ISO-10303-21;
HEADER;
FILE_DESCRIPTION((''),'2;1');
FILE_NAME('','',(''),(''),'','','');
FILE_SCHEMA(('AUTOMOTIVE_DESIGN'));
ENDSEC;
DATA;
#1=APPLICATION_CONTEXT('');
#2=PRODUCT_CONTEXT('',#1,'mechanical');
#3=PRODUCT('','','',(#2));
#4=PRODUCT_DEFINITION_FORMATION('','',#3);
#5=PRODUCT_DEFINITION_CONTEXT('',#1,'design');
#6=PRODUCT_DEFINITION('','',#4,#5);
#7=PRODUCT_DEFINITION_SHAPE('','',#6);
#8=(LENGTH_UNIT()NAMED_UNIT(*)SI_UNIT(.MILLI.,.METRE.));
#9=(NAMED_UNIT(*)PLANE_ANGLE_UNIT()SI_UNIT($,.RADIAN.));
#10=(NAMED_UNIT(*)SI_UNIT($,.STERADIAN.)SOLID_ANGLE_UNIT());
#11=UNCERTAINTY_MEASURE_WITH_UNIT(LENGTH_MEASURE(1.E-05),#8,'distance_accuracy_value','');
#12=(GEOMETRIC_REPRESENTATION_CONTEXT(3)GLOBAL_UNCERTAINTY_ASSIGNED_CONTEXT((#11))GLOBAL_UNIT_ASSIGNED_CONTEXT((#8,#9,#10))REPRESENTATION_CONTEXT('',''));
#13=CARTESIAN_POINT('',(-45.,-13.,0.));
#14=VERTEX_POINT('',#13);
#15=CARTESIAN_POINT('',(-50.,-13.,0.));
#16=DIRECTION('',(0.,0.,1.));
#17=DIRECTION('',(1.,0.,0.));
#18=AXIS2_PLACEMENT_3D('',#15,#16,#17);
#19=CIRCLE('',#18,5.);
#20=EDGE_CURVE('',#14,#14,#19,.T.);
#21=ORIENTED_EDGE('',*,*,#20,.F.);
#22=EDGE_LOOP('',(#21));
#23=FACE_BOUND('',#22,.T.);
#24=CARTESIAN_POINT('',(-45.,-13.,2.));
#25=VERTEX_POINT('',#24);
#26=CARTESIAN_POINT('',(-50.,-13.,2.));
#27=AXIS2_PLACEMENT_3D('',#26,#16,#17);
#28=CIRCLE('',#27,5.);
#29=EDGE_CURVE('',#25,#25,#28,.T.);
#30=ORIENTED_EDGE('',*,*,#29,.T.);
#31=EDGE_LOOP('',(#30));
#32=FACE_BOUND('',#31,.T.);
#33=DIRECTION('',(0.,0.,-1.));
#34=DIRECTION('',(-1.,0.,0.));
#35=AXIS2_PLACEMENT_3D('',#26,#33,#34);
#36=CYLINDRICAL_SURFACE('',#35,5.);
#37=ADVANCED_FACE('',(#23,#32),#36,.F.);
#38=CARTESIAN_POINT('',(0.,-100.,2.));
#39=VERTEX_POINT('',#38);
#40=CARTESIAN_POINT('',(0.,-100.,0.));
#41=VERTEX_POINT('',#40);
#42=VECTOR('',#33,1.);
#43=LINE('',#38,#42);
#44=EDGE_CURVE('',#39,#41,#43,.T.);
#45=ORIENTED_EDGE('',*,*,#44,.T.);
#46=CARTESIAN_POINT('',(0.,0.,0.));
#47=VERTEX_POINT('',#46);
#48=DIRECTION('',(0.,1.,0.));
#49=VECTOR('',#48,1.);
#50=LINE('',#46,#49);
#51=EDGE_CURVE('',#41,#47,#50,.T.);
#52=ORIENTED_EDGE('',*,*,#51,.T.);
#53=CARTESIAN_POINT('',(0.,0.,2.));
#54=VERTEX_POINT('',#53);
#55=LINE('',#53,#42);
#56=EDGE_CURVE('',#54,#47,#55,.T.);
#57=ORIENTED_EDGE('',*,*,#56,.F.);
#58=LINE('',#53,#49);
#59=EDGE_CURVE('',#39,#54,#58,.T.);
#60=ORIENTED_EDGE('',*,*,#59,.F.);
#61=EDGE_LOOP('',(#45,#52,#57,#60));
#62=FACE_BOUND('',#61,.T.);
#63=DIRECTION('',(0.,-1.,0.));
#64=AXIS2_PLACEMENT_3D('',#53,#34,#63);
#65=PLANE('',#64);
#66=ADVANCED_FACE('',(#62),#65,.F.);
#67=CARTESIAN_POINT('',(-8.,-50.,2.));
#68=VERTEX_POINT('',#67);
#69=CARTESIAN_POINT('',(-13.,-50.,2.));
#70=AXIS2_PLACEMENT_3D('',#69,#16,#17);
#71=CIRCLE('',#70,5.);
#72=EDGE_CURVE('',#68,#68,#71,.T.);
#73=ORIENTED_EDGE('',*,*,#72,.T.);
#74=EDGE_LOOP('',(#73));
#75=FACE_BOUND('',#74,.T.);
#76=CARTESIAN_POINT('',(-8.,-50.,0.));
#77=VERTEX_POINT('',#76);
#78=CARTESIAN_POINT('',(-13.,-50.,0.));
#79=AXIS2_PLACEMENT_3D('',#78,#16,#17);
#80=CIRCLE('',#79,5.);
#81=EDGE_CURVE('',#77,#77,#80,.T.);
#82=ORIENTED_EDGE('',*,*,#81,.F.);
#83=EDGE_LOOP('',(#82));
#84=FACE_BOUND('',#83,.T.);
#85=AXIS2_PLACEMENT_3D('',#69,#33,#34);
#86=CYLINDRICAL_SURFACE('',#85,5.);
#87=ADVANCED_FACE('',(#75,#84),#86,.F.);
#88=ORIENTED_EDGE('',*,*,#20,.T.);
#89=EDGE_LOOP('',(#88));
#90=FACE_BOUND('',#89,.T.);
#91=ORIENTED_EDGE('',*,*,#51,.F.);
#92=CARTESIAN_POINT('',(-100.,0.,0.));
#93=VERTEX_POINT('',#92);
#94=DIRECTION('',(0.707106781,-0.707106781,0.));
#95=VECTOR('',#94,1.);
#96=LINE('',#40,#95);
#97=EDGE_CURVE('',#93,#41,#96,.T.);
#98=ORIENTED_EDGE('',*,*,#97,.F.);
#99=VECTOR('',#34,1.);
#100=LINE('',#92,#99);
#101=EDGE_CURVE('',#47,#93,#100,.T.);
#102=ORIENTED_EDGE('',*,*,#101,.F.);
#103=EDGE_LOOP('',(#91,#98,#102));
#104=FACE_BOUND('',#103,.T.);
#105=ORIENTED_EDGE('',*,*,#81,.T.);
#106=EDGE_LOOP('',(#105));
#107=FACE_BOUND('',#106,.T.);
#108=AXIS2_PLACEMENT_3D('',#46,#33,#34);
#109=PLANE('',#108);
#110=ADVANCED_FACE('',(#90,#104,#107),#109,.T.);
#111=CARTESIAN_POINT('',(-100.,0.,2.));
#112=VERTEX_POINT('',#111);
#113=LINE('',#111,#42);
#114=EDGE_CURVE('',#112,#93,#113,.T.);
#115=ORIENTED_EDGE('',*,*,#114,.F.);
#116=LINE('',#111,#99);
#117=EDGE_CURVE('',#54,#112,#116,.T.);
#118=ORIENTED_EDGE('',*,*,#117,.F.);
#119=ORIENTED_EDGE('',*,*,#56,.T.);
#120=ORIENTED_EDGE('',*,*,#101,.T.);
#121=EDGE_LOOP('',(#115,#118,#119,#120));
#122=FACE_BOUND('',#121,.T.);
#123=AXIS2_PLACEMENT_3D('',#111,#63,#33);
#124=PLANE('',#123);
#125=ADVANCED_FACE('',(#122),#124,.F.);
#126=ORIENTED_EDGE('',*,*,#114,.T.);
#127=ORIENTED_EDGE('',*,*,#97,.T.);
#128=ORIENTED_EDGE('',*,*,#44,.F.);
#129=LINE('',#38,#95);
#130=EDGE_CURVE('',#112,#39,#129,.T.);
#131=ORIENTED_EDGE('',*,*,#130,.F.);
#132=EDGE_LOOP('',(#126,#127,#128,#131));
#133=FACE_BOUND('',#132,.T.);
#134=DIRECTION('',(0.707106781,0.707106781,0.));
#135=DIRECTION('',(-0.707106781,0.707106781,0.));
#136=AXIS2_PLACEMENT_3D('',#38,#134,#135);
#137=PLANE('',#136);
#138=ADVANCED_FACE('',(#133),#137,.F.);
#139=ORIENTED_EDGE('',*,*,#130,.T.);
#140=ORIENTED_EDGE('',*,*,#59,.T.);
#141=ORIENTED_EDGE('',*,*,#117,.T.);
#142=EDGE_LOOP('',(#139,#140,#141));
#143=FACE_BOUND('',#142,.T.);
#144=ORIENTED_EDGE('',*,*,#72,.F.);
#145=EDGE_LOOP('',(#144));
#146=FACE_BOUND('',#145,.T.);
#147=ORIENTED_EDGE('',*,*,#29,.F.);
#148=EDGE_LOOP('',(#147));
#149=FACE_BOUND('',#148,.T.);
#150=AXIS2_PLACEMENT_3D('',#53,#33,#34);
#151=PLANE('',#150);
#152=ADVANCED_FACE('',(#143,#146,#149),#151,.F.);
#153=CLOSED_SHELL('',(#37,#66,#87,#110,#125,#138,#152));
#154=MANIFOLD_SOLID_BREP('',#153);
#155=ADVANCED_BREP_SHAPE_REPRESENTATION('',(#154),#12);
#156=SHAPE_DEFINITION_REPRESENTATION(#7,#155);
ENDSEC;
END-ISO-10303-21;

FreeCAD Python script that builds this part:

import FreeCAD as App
import Part
import Sketcher

V = App.Vector


def add_polygon(sketch, points):
    """Adds a closed chain of lines whose ends are joined by coincident constraints."""
    first, n = sketch.GeometryCount, len(points)
    for a, b in zip(points, points[1:] + points[:1]):
        sketch.addGeometry(Part.LineSegment(App.Vector(*a, 0), App.Vector(*b, 0)), False)
    for i in range(n):
        sketch.addConstraint(Sketcher.Constraint("Coincident", first + i, 2, first + (i + 1) % n, 1))

doc = App.newDocument("Part")
body = doc.addObject("PartDesign::Body", "Body")

# Sketch on XY plane
sketch1 = doc.addObject("Sketcher::SketchObject", "Sketch")
body.addObject(sketch1)
sketch1.AttachmentSupport = (doc.XY_Plane, [""])
sketch1.MapMode = "FlatFace"
add_polygon(sketch1, [(0, -100), (0, 0), (-100, 0)])  # lines 0-2
sketch1.addGeometry(Part.Circle(V(-13, -50, 0), V(0, 0, 1), 5), False)  # 3
sketch1.addGeometry(Part.Circle(V(-50, -13, 0), V(0, 0, 1), 5), False)  # 4
sketch1.addConstraint([
    Sketcher.Constraint("Vertical", 0),
    Sketcher.Constraint("Horizontal", 1),
    Sketcher.Constraint("Coincident", 0, 2, -1, 1),
    Sketcher.Constraint("Equal", 3, 4),
    Sketcher.Constraint("Equal", 1, 0),
    Sketcher.Constraint("Diameter", 3, 10.0),
    Sketcher.Constraint("DistanceX", 1, 2, 1, 1, 100.0),
    Sketcher.Constraint("DistanceX", 3, 3, -1, 1, 13.0),
    Sketcher.Constraint("DistanceY", 3, 3, -1, 1, 50.0),
    Sketcher.Constraint("DistanceX", 4, 3, -1, 1, 50.0),
    Sketcher.Constraint("DistanceY", 4, 3, -1, 1, 13.0),
])
pad1 = doc.addObject("PartDesign::Pad", "Pad")
body.addObject(pad1)
pad1.Profile = sketch1
pad1.Length = 2

doc.recompute()
